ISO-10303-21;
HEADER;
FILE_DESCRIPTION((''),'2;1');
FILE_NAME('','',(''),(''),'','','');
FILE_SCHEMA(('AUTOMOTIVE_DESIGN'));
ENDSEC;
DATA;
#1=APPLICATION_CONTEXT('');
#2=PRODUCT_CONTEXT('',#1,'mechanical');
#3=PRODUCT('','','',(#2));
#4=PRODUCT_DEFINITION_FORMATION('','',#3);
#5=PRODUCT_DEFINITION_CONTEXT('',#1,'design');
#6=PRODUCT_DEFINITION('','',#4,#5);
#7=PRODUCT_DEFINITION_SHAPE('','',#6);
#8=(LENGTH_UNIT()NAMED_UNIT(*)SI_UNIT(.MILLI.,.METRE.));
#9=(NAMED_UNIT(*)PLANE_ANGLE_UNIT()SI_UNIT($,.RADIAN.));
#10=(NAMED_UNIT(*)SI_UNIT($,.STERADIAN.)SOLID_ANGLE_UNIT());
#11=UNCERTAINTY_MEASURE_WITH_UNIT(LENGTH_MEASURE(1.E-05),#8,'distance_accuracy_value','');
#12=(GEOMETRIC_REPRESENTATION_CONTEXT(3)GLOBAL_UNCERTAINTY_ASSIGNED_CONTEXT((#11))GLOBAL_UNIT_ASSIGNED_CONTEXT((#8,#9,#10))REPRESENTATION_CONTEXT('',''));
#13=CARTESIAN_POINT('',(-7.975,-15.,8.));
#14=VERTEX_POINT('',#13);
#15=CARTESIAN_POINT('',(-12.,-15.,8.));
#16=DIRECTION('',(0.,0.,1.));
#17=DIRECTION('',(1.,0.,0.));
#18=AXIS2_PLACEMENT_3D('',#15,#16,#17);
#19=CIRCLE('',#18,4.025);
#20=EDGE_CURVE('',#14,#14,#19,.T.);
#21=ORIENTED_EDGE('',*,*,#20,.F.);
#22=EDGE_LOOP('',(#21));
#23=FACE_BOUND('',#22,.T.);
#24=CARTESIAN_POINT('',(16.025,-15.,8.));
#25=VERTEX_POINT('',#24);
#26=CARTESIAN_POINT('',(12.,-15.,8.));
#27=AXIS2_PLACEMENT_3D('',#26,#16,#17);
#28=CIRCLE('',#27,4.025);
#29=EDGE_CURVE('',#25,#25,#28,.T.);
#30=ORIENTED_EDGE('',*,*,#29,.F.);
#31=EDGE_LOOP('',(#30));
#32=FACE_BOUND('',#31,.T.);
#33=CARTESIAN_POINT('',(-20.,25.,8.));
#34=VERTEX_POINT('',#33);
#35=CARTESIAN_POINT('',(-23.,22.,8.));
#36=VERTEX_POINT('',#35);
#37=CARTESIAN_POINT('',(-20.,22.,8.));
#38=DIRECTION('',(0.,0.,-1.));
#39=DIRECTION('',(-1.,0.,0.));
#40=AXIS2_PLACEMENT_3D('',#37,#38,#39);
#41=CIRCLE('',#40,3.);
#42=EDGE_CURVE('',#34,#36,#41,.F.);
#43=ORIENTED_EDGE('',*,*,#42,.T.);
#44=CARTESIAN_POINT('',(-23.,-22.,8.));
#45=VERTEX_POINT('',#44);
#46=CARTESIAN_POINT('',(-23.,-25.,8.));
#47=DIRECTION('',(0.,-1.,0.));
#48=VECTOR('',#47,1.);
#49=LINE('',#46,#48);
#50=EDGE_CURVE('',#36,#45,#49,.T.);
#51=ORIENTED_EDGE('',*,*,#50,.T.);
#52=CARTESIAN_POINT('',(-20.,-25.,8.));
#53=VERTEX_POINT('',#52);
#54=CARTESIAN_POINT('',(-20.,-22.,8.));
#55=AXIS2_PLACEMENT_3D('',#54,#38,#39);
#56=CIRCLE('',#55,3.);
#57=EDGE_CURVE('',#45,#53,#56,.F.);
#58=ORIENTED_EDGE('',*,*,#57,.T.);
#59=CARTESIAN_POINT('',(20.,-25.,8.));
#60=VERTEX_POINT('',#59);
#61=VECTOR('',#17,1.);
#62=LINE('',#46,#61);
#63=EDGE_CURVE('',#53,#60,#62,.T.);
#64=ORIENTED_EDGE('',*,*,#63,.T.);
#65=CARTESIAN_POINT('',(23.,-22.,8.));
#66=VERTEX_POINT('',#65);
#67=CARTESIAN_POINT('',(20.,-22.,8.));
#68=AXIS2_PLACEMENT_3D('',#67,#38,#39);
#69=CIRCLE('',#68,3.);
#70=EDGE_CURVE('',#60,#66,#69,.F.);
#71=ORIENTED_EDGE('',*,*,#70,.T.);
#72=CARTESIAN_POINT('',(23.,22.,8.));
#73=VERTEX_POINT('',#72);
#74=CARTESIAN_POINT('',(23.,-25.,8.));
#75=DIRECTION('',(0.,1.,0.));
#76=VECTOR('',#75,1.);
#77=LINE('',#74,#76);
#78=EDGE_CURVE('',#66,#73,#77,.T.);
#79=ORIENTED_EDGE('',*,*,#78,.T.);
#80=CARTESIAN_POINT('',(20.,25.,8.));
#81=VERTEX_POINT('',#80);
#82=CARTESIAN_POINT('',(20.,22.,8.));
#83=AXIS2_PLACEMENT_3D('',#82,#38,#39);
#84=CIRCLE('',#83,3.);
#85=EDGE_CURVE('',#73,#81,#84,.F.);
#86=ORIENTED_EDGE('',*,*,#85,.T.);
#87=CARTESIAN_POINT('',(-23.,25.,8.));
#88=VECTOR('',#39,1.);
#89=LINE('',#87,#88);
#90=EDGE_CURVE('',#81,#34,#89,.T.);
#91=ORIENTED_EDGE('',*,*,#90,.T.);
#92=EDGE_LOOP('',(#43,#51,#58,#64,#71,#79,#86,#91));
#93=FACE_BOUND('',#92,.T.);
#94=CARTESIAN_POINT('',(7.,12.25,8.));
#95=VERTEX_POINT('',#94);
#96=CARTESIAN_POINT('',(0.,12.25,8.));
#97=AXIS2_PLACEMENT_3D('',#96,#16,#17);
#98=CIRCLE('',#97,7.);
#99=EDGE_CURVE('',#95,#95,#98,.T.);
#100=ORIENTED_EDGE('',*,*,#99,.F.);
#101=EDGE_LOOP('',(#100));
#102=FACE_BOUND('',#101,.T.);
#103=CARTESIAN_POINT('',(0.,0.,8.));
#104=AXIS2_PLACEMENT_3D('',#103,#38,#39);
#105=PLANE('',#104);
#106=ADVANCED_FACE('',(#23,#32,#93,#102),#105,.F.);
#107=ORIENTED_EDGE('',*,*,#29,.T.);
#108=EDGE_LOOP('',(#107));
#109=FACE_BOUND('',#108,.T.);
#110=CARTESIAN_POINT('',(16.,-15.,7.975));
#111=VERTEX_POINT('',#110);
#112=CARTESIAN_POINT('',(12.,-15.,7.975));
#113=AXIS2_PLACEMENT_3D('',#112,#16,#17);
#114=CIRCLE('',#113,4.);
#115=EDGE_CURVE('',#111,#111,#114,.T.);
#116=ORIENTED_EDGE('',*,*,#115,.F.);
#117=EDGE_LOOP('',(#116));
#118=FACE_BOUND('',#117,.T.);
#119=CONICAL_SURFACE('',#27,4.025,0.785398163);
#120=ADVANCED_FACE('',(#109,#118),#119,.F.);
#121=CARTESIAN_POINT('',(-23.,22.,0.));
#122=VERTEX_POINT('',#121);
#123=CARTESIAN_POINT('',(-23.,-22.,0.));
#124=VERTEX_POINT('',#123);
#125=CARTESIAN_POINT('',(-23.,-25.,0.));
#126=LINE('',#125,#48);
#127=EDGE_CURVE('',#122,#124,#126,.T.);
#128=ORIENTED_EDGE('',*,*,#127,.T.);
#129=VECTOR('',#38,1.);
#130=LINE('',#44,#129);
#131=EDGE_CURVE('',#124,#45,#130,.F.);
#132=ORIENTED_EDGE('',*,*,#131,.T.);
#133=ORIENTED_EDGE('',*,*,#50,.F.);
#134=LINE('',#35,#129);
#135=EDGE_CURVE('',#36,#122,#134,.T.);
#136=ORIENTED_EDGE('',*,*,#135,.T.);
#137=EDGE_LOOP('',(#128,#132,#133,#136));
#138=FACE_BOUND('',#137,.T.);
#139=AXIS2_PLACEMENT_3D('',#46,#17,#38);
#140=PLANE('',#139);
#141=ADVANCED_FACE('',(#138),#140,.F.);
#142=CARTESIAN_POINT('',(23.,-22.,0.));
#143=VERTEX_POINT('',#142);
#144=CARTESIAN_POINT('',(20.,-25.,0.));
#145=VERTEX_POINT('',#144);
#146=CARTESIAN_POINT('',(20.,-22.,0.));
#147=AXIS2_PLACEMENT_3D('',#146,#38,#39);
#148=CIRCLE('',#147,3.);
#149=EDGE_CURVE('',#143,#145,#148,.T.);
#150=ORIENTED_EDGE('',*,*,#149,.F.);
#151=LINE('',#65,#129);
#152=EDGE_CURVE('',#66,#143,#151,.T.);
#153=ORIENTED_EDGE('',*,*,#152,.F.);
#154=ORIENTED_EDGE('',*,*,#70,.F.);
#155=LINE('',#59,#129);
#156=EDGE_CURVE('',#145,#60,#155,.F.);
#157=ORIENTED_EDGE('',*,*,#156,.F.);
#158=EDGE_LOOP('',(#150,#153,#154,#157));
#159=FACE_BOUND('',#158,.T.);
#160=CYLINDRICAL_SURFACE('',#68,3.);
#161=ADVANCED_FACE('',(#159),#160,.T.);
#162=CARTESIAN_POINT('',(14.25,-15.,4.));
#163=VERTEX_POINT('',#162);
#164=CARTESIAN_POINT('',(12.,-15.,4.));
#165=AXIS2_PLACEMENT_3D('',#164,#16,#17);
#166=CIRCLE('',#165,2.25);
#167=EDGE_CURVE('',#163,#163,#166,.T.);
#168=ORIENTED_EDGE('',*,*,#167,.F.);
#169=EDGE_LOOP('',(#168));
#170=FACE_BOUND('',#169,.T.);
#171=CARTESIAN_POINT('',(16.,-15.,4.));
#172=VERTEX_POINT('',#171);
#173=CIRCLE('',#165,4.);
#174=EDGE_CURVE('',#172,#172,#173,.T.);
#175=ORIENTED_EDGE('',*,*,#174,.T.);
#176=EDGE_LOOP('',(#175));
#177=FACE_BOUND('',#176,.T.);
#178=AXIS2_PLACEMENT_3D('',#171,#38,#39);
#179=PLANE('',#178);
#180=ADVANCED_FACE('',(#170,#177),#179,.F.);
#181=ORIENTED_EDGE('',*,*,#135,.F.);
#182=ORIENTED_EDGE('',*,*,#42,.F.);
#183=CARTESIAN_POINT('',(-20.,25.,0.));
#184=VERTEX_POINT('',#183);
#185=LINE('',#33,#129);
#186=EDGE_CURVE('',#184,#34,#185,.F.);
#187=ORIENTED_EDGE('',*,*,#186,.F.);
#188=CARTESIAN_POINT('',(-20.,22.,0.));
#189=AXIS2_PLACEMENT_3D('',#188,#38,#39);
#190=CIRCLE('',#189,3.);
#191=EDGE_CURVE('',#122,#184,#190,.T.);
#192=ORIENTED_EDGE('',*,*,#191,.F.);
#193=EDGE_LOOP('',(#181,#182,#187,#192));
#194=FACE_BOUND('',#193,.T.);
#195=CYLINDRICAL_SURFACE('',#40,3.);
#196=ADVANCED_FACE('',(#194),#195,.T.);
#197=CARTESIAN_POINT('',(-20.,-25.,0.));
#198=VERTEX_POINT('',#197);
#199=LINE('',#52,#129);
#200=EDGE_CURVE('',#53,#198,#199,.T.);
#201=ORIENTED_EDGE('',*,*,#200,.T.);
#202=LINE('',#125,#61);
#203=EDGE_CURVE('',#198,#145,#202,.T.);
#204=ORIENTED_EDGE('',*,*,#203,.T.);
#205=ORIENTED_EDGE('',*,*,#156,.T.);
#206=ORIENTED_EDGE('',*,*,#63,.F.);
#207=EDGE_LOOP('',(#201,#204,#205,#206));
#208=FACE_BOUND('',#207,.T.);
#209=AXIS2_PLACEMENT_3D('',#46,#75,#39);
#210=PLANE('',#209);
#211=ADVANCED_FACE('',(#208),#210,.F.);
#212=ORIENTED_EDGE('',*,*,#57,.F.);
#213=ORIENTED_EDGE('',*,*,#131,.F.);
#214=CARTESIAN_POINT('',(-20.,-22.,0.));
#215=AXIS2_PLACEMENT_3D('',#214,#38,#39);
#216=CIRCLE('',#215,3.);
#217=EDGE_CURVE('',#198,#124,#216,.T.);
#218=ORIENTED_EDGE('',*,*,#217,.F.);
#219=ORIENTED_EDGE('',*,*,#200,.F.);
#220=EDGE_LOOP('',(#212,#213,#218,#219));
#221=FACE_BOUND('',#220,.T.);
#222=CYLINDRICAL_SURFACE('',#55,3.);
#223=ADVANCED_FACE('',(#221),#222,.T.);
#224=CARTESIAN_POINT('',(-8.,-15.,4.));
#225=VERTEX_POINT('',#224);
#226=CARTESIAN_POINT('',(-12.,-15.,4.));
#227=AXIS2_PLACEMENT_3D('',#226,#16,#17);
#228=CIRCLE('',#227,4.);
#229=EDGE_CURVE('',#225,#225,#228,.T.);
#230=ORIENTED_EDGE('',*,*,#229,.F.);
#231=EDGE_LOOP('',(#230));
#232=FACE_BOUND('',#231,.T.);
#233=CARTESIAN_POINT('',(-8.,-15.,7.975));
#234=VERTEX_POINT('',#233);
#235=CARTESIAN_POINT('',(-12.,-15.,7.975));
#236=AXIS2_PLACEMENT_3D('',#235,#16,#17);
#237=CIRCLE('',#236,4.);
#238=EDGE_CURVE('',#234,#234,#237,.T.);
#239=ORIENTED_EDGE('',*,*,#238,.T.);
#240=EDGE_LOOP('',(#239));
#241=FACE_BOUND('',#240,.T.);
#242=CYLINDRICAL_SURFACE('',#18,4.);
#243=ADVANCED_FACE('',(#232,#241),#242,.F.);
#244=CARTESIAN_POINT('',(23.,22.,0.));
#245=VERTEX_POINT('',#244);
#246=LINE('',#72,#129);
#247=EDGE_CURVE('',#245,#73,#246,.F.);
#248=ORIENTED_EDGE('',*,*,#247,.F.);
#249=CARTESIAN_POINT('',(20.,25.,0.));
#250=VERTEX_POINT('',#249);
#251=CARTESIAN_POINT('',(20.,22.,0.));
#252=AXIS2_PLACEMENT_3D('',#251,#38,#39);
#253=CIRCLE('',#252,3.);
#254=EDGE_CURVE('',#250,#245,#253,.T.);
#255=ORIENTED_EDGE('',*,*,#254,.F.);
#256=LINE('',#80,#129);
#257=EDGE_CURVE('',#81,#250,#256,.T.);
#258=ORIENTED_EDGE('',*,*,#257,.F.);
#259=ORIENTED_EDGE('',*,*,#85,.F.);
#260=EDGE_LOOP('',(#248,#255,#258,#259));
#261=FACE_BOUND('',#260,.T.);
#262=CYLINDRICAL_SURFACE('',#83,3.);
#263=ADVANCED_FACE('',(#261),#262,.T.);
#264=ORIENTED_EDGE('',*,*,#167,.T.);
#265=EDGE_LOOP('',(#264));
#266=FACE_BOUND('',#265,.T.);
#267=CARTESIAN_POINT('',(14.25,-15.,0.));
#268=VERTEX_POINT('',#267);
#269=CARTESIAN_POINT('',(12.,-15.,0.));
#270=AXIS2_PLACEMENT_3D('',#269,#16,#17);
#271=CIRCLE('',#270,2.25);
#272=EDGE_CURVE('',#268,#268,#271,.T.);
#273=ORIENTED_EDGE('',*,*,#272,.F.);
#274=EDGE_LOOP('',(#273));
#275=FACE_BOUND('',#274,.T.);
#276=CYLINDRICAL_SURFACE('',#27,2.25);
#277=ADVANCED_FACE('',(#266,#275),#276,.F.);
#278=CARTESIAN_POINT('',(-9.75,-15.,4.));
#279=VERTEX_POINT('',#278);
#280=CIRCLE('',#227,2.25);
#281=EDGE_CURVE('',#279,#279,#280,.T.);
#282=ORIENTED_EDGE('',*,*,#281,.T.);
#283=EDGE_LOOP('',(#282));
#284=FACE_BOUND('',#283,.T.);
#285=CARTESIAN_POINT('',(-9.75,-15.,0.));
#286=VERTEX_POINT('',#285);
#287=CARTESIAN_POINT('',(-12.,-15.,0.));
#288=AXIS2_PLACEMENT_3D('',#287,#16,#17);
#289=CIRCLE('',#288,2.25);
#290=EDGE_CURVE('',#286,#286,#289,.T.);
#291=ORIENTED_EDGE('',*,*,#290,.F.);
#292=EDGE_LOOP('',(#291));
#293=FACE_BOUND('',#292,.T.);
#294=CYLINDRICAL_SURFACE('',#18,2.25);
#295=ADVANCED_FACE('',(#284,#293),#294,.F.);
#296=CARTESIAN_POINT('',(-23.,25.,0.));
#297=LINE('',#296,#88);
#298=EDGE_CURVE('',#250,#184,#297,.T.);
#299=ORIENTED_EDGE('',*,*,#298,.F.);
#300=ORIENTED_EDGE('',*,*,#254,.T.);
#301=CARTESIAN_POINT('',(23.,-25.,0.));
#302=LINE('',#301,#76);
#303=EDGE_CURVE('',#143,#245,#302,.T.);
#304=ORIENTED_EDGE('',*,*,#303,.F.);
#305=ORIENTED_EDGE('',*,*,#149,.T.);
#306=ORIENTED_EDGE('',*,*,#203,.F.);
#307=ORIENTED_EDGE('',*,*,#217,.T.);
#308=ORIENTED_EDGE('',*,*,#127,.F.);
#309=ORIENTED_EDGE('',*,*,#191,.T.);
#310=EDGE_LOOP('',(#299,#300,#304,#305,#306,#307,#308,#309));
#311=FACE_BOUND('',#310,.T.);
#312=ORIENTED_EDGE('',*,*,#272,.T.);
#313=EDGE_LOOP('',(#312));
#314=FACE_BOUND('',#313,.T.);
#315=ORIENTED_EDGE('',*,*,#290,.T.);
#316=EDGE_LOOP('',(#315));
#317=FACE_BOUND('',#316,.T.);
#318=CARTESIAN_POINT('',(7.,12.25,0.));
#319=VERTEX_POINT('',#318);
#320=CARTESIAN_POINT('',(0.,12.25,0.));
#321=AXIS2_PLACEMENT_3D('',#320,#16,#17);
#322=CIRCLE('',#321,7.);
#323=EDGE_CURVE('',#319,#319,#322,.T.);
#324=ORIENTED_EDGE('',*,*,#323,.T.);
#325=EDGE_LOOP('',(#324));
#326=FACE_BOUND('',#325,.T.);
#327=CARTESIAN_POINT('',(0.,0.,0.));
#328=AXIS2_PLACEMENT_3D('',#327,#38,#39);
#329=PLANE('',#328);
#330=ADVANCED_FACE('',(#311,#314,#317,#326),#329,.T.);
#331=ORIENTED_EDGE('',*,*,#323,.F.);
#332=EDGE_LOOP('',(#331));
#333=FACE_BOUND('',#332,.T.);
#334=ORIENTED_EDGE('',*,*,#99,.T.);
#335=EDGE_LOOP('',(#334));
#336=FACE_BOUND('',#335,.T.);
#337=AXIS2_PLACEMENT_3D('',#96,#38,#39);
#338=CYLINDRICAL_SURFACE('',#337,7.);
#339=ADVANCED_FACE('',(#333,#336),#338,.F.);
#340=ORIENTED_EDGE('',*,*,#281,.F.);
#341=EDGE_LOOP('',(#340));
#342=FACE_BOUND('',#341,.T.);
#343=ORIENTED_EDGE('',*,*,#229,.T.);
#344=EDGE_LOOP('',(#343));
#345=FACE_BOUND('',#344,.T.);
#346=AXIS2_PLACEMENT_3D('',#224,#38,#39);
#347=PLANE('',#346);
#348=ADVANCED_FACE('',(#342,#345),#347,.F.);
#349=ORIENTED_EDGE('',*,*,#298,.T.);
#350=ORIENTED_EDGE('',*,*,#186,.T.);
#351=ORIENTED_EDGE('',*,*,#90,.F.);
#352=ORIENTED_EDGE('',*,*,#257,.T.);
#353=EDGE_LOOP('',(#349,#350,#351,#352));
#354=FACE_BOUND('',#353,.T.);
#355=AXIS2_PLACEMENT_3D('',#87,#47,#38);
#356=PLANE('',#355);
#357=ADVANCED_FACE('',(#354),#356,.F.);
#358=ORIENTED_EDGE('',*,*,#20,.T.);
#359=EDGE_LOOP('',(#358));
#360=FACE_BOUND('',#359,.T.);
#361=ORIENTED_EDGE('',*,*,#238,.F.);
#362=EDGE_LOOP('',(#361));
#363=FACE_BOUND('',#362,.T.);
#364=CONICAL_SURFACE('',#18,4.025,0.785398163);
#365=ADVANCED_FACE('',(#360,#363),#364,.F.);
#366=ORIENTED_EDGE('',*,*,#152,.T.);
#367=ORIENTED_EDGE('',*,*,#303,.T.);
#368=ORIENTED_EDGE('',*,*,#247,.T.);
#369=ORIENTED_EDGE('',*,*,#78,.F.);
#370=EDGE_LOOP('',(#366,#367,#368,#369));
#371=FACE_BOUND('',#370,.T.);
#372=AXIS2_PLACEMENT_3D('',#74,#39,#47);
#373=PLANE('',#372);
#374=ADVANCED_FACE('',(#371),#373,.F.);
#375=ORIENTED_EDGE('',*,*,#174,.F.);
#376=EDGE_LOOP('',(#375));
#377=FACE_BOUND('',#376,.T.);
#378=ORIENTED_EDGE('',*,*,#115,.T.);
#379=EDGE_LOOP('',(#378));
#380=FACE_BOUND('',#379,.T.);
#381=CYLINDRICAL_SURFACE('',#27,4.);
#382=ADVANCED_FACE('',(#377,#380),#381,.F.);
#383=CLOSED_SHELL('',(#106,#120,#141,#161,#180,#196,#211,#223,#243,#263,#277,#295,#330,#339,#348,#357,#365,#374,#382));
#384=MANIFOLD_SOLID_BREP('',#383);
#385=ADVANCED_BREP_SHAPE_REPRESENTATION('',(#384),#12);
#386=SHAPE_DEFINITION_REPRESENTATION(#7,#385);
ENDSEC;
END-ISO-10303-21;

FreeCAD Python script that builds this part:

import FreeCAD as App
import Part
import Sketcher
from FreeCAD import Vector
Q = App.Units.Quantity


def edges_at(feature, points):
    """Names of the edges that pass closest to the given points."""
    edges = feature.Shape.Edges
    near = lambda p: min(range(len(edges)), key=lambda i: edges[i].distToShape(Part.Vertex(*p))[0])
    return sorted({f"Edge{near(p) + 1}" for p in points})


def add_polygon(sketch, points):
    """Adds a closed chain of lines whose ends are joined by coincident constraints."""
    first, n = sketch.GeometryCount, len(points)
    for a, b in zip(points, points[1:] + points[:1]):
        sketch.addGeometry(Part.LineSegment(App.Vector(*a, 0), App.Vector(*b, 0)), False)
    for i in range(n):
        sketch.addConstraint(Sketcher.Constraint("Coincident", first + i, 2, first + (i + 1) % n, 1))

doc = App.newDocument("Part")
body = doc.addObject("PartDesign::Body", "Body")

# Sketch on XY plane
sketch1 = body.newObject("Sketcher::SketchObject", "Sketch")
sketch1.AttachmentSupport = (doc.getObject("XY_Plane"), [""])
sketch1.MapMode = "FlatFace"
add_polygon(sketch1, [(-23, 25), (-23, -25), (23, -25), (23, 25)])  # lines 0-3
sketch1.addGeometry(Part.Circle(Vector(0, 12, 0), Vector(0, 0, 1), 7), False)  # 4
sketch1.addConstraint([
    Sketcher.Constraint("Vertical", 0),
    Sketcher.Constraint("Horizontal", 1),
    Sketcher.Constraint("Vertical", 2),
    Sketcher.Constraint("Horizontal", 3),
    Sketcher.Constraint("Symmetric", 0, 2, 2, 2, -1, 1),
    Sketcher.Constraint("PointOnObject", 4, 3, -2),
    Sketcher.Constraint("Diameter", 4, 14.0),
    Sketcher.Constraint("DistanceX", 1, 1, 1, 2, 46.0),
    Sketcher.Constraint("DistanceY", 0, 2, 0, 1, 50.0),
    Sketcher.Constraint("DistanceY", -1, 1, 4, 3, 12.25),
])
pad1 = body.newObject("PartDesign::Pad", "Pad")
pad1.Profile = sketch1
pad1.Length = 8
doc.recompute()

fillet = body.newObject("PartDesign::Fillet", "Fillet")
fillet.Base = (pad1, edges_at(pad1, [
    (23, -25, 4),
    (-23, -25, 4),
    (-23, 25, 4),
    (23, 25, 4),
]))
fillet.Radius = 3

# Sketch on YZ plane
sketch2 = body.newObject("Sketcher::SketchObject", "Sketch001")
sketch2.AttachmentSupport = (doc.getObject("YZ_Plane"), [""])
sketch2.MapMode = "FlatFace"
sketch2.AttachmentOffset = App.Placement(Vector(0, 0, -12), App.Rotation())
add_polygon(sketch2, [(-15, 0), (-15, 8), (-19.025, 8), (-19, 7.975), (-19, 4), (-17.25, 4), (-17.25, 0)])  # lines 0-6
sketch2.addGeometry(Part.LineSegment(Vector(-15, 8, 0), Vector(-15, 0, 0)), True)  # axis
sketch2.addConstraint([
    Sketcher.Constraint("Vertical", 0),
    Sketcher.Constraint("Horizontal", 1),
    Sketcher.Constraint("Vertical", 3),
    Sketcher.Constraint("Horizontal", 4),
    Sketcher.Constraint("Vertical", 5),
    Sketcher.Constraint("Horizontal", 6),
    Sketcher.Constraint("Vertical", 7),
    Sketcher.Constraint("Coincident", 7, 1, 0, 2),
    Sketcher.Constraint("PointOnObject", 5, 2, -1),
    Sketcher.Constraint("PointOnObject", 7, 2, -1),
    Sketcher.Constraint("DistanceY", 0, 1, 0, 2, 8.0),
    Sketcher.Constraint("DistanceY", 5, 2, 5, 1, 4.0),
    Sketcher.Constraint("Angle", 2, Q("-45 deg")),
    Sketcher.Constraint("DistanceX", 0, 2, -1, 1, 15.0),
    Sketcher.Constraint("DistanceX", 2, 2, -1, 1, 19.0),
    Sketcher.Constraint("DistanceX", 4, 1, 4, 2, 1.75),
    Sketcher.Constraint("DistanceX", 1, 2, 1, 1, 4.025),
])
groove = body.newObject("PartDesign::Groove", "Groove")
groove.Profile = sketch2
groove.ReferenceAxis = (sketch2, ["Axis0"])
groove.Angle = 360
doc.recompute()

linearpattern = body.newObject("PartDesign::LinearPattern", "LinearPattern")
linearpattern.Originals = [groove]
linearpattern.Direction = (doc.getObject("X_Axis"), [""])
linearpattern.Mode = "offset"
linearpattern.Offset = 24
linearpattern.Occurrences = 2
body.Tip = linearpattern

doc.recompute()
